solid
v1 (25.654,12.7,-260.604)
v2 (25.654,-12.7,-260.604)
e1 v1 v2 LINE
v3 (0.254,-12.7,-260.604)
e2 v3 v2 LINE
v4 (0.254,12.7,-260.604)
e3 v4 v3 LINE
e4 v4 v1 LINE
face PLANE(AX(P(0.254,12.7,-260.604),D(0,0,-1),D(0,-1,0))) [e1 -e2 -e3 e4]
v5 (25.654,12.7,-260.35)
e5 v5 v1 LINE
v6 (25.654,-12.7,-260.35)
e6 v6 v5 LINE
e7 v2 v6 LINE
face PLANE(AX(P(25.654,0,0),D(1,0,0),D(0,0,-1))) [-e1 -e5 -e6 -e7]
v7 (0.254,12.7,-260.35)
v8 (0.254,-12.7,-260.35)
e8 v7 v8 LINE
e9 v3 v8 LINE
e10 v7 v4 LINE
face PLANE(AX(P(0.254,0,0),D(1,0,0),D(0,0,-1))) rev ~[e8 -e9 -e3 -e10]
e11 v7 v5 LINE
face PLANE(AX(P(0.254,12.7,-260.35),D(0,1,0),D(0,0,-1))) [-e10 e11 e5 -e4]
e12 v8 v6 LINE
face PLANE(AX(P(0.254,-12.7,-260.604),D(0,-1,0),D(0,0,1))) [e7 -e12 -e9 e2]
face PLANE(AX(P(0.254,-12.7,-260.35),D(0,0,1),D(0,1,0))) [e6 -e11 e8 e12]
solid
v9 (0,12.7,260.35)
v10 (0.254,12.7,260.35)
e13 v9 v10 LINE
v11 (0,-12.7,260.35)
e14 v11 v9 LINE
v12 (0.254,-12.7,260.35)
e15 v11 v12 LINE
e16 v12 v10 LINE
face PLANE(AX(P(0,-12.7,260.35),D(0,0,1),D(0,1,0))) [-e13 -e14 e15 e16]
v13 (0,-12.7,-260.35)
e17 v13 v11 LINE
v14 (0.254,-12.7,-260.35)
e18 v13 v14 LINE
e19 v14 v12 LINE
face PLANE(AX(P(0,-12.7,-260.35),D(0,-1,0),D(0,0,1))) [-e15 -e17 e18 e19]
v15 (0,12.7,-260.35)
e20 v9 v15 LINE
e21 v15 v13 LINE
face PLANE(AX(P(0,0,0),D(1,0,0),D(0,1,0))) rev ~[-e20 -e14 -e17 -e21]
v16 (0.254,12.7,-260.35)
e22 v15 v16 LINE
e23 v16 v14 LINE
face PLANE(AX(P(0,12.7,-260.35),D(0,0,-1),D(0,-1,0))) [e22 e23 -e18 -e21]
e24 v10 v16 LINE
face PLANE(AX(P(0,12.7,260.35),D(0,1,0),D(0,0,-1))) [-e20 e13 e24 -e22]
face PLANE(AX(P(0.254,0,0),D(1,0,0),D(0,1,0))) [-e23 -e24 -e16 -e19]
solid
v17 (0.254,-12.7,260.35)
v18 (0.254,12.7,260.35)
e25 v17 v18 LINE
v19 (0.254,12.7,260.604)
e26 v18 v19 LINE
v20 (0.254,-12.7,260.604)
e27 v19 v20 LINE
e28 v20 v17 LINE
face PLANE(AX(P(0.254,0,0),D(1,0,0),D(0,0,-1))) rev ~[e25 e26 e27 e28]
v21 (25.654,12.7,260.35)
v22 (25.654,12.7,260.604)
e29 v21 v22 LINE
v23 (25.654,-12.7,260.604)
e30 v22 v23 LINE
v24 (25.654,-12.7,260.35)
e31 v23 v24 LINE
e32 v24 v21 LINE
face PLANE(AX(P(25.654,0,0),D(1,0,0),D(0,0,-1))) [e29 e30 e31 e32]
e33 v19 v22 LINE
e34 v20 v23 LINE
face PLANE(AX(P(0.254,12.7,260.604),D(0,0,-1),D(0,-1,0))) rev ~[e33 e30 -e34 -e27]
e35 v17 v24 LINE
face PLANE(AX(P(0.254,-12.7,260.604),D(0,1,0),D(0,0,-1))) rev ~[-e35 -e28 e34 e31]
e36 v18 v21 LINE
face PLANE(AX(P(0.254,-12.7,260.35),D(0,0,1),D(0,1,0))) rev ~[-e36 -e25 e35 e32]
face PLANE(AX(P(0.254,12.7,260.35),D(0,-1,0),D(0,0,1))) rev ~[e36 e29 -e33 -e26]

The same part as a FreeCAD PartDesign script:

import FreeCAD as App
import Part
import Sketcher
Q = App.Units.Quantity


def add_polygon(sketch, points):
    """Adds a closed chain of lines whose ends are joined by coincident constraints."""
    first, n = sketch.GeometryCount, len(points)
    for a, b in zip(points, points[1:] + points[:1]):
        sketch.addGeometry(Part.LineSegment(App.Vector(*a, 0), App.Vector(*b, 0)), False)
    for i in range(n):
        sketch.addConstraint(Sketcher.Constraint("Coincident", first + i, 2, first + (i + 1) % n, 1))

doc = App.newDocument("Part")
body = doc.addObject("PartDesign::Body", "Body")
body.AllowCompound = True

sketch1 = doc.addObject("Sketcher::SketchObject", "Sketch")
body.addObject(sketch1)
sketch1.AttachmentSupport = (doc.YZ_Plane, [""])
sketch1.MapMode = "FlatFace"
add_polygon(sketch1, [(13, 260), (-13, 260), (-13, -260), (13, -260)])
sketch1.addConstraint([
    Sketcher.Constraint("Horizontal", 0),
    Sketcher.Constraint("Vertical", 1),
    Sketcher.Constraint("Horizontal", 2),
    Sketcher.Constraint("Vertical", 3),
    Sketcher.Constraint("Symmetric", 0, 2, 2, 2, -1, 1),
    Sketcher.Constraint("DistanceX", 0, 2, 0, 1, Q("1 in")),
    Sketcher.Constraint("DistanceY", 1, 2, 1, 1, Q("20.5 in")),
])
pad1 = doc.addObject("PartDesign::Pad", "Pad")
body.addObject(pad1)
pad1.Profile = sketch1
pad1.Length = Q("0.01 in")

sketch2 = doc.addObject("Sketcher::SketchObject", "Sketch001")
body.addObject(sketch2)
sketch2.AttachmentSupport = (doc.YZ_Plane, [""])
sketch2.MapMode = "FlatFace"
sketch2.AttachmentOffset = App.Placement(App.Vector(0, 0, 0.01 * 25.4), App.Rotation())
add_polygon(sketch2, [(-12.7, 260.35), (12.7, 260.35), (12.7, 260.6), (-12.7, 260.6)])
add_polygon(sketch2, [(12.7, -260.6), (12.7, -260.35), (-12.7, -260.35), (-12.7, -260.6)])
sketch2.addConstraint([
    Sketcher.Constraint("Horizontal", 0),
    Sketcher.Constraint("Vertical", 1),
    Sketcher.Constraint("Horizontal", 2),
    Sketcher.Constraint("Vertical", 3),
    Sketcher.Constraint("Vertical", 4),
    Sketcher.Constraint("Horizontal", 5),
    Sketcher.Constraint("Vertical", 6),
    Sketcher.Constraint("Horizontal", 7),
    Sketcher.Constraint("Symmetric", 3, 2, 4, 2, -1, 1),
    Sketcher.Constraint("Symmetric", 1, 2, 6, 2, -1, 1),
    Sketcher.Constraint("Vertical", 1, 2, 4, 2),
    Sketcher.Constraint("DistanceX", 0, 1, 0, 2, Q("1 in")),
    Sketcher.Constraint("DistanceY", 1, 1, 1, 2, Q("0.01 in")),
    Sketcher.Constraint("DistanceY", 4, 2, 0, 2, Q("20.5 in")),
])
pad2 = doc.addObject("PartDesign::Pad", "Pad001")
body.addObject(pad2)
pad2.Profile = sketch2
pad2.Length = Q("1 in")

doc.recompute()
